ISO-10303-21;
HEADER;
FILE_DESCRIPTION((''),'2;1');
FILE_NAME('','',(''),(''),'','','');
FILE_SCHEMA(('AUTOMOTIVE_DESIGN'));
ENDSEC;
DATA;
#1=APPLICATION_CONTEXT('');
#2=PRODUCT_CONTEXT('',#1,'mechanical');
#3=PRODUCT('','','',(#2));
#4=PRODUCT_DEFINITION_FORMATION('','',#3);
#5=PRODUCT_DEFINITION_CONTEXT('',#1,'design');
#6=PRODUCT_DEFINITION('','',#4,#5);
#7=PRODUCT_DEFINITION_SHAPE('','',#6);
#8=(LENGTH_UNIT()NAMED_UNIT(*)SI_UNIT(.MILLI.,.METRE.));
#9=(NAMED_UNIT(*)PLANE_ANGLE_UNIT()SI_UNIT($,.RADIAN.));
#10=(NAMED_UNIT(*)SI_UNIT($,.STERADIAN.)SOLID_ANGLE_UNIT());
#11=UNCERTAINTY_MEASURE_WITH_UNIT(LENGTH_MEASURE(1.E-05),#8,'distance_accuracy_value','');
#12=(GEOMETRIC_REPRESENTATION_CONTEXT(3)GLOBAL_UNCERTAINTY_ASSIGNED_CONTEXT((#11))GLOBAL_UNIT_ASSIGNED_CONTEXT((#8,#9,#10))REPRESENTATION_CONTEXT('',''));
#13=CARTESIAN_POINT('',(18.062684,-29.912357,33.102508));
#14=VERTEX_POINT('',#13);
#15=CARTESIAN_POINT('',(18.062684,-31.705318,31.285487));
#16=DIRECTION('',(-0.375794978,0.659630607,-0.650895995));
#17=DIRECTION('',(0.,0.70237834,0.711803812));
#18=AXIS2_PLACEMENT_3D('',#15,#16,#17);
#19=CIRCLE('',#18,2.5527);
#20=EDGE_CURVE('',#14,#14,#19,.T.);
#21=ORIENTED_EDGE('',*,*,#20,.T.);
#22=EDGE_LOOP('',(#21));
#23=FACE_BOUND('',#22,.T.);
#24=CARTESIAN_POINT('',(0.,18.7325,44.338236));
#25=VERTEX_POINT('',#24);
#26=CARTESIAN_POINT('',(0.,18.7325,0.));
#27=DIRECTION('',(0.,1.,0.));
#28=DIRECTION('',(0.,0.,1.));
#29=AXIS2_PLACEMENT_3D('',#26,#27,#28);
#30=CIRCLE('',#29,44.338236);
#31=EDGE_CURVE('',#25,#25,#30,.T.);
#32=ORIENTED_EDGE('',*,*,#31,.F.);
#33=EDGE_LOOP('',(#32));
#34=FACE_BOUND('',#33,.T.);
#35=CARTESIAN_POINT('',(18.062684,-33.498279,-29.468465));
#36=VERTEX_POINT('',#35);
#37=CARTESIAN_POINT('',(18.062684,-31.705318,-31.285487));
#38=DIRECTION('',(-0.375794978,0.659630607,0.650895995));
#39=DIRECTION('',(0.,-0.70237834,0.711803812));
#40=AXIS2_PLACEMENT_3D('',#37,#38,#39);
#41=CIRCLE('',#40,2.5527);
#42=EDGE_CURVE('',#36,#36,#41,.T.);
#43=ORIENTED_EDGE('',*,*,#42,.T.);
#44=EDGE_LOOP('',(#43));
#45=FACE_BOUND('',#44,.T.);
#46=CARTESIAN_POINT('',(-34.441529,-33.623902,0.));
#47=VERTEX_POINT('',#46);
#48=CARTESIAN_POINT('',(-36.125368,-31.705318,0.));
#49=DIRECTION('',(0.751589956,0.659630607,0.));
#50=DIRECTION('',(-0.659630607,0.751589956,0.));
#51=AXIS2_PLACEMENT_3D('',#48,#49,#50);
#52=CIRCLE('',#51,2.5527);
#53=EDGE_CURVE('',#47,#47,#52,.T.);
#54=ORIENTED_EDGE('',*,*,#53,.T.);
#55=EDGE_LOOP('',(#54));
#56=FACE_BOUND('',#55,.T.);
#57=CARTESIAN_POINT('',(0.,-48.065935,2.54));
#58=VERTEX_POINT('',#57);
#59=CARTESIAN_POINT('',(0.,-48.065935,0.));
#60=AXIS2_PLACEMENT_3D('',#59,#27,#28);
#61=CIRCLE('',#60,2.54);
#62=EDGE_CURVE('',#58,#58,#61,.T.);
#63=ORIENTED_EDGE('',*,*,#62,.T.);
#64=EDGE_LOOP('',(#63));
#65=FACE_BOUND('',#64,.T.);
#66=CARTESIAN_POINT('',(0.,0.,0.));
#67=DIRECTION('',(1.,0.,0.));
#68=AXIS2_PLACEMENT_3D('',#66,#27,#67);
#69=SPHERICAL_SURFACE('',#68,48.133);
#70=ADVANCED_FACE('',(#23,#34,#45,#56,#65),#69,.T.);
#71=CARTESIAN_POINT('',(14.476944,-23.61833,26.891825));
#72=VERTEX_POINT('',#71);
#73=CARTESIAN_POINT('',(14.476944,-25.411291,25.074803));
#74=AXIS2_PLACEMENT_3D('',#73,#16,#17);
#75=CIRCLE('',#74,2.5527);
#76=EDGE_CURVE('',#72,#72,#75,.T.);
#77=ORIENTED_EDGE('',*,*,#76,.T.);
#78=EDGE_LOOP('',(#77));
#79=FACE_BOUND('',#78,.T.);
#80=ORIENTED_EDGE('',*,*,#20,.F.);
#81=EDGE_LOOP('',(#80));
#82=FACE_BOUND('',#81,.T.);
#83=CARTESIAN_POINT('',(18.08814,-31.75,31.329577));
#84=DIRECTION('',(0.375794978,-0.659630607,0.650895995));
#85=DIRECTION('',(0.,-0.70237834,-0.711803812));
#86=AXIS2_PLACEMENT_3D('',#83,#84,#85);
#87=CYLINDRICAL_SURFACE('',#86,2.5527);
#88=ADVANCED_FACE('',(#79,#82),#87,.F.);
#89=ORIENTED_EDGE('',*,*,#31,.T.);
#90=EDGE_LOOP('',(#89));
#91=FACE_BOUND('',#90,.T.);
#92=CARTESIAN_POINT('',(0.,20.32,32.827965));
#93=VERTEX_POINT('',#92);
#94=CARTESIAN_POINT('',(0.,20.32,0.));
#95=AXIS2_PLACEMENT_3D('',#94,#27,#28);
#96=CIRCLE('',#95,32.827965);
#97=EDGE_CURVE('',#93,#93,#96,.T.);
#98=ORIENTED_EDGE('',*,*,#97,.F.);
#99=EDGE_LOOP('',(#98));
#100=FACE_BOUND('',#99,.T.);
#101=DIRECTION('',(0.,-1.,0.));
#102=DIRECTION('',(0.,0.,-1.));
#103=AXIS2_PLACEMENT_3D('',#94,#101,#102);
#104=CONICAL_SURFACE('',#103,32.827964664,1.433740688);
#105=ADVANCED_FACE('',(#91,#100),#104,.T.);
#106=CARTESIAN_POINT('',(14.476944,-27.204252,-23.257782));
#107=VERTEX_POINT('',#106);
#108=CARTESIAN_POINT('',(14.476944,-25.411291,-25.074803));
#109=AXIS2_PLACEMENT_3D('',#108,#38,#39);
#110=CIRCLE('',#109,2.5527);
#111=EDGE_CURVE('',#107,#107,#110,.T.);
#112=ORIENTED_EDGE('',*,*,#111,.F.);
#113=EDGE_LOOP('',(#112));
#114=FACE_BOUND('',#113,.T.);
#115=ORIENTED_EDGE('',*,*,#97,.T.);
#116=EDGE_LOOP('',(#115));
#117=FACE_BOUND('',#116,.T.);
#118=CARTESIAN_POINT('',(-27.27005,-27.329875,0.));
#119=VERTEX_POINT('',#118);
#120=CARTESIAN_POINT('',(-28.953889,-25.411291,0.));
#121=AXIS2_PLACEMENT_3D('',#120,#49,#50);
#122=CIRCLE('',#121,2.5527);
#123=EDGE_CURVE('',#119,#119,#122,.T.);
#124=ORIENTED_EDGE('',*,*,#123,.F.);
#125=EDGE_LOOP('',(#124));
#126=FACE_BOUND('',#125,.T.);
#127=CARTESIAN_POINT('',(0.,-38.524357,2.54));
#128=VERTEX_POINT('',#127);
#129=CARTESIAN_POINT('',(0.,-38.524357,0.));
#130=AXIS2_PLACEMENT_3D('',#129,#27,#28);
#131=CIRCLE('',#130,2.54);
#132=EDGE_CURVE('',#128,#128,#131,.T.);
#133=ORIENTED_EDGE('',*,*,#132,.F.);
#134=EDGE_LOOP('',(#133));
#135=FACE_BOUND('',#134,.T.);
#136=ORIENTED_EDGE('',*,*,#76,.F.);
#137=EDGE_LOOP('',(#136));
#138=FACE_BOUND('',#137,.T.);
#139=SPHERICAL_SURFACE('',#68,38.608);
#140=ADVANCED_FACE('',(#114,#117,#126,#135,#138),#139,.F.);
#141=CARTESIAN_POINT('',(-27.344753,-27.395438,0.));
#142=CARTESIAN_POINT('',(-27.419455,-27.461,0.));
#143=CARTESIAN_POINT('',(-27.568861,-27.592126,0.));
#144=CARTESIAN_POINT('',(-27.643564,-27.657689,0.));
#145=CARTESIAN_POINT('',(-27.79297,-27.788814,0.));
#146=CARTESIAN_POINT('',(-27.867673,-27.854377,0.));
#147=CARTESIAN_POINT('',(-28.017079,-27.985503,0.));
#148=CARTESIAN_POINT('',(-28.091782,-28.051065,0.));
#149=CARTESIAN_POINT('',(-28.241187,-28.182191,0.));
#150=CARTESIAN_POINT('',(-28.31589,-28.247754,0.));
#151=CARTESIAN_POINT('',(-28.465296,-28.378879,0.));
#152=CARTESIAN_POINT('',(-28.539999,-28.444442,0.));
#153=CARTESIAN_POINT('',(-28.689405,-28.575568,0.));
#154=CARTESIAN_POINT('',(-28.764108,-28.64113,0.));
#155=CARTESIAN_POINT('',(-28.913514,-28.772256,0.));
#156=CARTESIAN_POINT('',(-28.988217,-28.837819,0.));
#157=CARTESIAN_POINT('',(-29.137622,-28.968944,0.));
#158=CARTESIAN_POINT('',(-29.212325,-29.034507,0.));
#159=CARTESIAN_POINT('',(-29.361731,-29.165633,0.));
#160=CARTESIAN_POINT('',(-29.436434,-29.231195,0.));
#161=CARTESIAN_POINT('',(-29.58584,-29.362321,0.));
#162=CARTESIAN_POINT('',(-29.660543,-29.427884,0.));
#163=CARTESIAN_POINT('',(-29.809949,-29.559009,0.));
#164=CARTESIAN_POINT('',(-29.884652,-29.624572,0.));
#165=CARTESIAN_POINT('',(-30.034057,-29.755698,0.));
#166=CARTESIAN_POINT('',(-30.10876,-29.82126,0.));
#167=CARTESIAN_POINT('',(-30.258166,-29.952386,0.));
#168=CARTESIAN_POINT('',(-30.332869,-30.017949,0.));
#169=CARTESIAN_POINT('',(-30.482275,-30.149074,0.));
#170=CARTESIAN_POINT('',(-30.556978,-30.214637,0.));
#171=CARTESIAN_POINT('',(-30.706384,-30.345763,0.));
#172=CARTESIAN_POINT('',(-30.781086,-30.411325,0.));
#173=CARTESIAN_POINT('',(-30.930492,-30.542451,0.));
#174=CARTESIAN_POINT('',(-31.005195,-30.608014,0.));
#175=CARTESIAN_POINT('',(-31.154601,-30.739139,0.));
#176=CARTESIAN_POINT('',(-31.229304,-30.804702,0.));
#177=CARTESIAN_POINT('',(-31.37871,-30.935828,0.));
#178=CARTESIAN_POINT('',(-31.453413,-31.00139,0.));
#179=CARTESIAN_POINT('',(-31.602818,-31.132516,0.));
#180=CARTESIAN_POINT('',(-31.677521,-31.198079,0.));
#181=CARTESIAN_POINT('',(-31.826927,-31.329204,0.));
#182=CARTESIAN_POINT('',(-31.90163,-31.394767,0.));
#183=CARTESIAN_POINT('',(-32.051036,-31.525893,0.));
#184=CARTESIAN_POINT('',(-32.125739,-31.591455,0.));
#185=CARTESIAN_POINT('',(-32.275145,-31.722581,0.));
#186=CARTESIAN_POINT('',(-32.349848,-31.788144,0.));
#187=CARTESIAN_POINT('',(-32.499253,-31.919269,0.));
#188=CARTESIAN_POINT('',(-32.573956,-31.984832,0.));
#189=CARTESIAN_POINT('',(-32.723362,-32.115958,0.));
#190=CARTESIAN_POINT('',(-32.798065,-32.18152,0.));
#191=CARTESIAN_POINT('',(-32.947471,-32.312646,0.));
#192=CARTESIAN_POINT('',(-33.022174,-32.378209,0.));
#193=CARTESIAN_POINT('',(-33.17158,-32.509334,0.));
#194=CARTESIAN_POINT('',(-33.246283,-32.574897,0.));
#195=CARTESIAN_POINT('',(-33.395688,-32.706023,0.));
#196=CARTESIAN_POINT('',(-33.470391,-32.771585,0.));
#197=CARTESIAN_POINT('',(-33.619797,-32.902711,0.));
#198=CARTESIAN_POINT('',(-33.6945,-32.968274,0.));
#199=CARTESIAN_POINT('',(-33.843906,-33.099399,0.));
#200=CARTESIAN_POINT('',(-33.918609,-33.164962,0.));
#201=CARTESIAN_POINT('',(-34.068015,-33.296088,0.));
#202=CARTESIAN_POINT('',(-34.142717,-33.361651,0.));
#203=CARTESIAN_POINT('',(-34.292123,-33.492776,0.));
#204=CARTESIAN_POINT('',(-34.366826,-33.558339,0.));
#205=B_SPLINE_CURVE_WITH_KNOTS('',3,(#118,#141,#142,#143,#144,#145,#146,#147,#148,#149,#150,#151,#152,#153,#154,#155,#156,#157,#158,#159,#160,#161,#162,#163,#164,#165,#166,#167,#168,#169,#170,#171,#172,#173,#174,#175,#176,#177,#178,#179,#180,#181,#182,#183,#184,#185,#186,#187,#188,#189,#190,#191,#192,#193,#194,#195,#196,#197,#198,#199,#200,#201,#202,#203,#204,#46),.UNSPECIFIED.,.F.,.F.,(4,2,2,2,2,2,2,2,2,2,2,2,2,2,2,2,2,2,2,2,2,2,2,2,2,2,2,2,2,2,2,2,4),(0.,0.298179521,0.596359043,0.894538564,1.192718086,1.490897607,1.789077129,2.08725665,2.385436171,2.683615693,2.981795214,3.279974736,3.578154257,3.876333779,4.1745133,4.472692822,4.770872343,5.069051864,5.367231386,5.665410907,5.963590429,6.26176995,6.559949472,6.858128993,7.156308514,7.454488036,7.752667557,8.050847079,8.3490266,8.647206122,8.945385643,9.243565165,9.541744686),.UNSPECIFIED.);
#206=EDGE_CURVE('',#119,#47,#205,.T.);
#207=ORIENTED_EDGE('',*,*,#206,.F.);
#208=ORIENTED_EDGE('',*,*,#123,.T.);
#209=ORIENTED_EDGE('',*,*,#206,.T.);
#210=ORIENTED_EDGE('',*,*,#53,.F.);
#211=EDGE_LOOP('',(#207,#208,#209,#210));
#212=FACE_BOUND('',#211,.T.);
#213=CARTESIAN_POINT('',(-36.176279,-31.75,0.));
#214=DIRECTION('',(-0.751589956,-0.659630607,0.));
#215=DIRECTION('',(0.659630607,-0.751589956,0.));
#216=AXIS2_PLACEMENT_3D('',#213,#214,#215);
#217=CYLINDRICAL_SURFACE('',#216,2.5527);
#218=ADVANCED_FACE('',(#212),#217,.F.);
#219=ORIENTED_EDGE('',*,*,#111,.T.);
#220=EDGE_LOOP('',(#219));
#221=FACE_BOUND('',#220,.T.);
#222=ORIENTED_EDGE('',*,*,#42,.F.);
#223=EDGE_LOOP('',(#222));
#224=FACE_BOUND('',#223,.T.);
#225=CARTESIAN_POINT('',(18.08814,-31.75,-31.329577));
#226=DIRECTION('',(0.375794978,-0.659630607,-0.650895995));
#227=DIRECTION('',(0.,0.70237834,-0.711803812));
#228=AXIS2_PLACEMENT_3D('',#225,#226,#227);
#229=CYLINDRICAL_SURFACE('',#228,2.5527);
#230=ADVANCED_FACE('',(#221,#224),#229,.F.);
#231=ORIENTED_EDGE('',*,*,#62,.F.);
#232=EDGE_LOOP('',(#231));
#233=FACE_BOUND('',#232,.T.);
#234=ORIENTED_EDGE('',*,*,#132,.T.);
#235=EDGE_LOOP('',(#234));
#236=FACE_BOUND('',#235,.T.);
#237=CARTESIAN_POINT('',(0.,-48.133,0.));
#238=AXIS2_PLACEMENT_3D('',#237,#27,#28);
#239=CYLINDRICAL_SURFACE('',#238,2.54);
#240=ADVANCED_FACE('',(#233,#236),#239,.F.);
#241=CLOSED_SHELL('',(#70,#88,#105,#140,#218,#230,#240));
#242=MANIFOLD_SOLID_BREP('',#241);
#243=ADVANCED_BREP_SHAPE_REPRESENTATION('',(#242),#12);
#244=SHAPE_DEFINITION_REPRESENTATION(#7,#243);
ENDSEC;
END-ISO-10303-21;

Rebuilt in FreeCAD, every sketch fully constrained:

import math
import FreeCAD as App
import Part
import Sketcher
from FreeCAD import Vector
Q = App.Units.Quantity

doc = App.newDocument("Part")
body = doc.addObject("PartDesign::Body", "Body")

sketch1 = body.newObject("Sketcher::SketchObject", "Sketch")
sketch1.AttachmentSupport = (doc.getObject("XY_Plane"), [""])
sketch1.MapMode = "FlatFace"
sketch1.addGeometry(Part.ArcOfCircle(Part.Circle(Vector(0, 0, 0), Vector(0, 0, 1), 39), math.radians(148), math.radians(270)), False)
sketch1.addGeometry(Part.LineSegment(Vector(-33, 20, 0), Vector(-44, 19, 0)), False)
sketch1.addGeometry(Part.ArcOfCircle(Part.Circle(Vector(0, 0, 0), Vector(0, 0, 1), 48), math.radians(157), math.radians(270)), False)
sketch1.addGeometry(Part.LineSegment(Vector(0, -48, 0), Vector(0, -39, 0)), False)
sketch1.addConstraint(Sketcher.Constraint("Coincident", 0, 1, 1, 1))
sketch1.addConstraint(Sketcher.Constraint("Coincident", 1, 2, 2, 1))
sketch1.addConstraint(Sketcher.Constraint("Coincident", 2, 2, 3, 1))
sketch1.addConstraint(Sketcher.Constraint("Coincident", 3, 2, 0, 2))
sketch1.addConstraint(Sketcher.Constraint("Vertical", 3))
sketch1.addConstraint(Sketcher.Constraint("Coincident", 0, 3, -1, 1))
sketch1.addConstraint(Sketcher.Constraint("Coincident", 2, 3, -1, 1))
sketch1.addConstraint(Sketcher.Constraint("PointOnObject", 2, 2, -2))
sketch1.addConstraint(Sketcher.Constraint("Radius", 0, Q("1.52 in")))
sketch1.addConstraint(Sketcher.Constraint("Radius", 2, Q("1.895 in")))
sketch1.addConstraint(Sketcher.Constraint("DistanceY", -1, 1, 0, 1, Q("0.8 in")))
sketch1.addConstraint(Sketcher.Constraint("DistanceY", 1, 2, 0, 1, Q("0.0625 in")))
revolution = body.newObject("PartDesign::Revolution", "Revolution")
revolution.Profile = sketch1
revolution.ReferenceAxis = (sketch1, ["V_Axis"])
revolution.Angle = 360

sketch2 = body.newObject("Sketcher::SketchObject", "Sketch001")
sketch2.Placement = App.Placement(Vector(-36.176279, -31.75, 0), App.Rotation(Vector(0.659630607, -0.751589956, 0), Vector(0, 0, 1), Vector(-0.751589956, -0.659630607, 0), "ZXY"))
sketch2.addGeometry(Part.Circle(Vector(0, 0, 0), Vector(0, 0, 1), 2.6), False)
sketch2.addConstraint(Sketcher.Constraint("Coincident", 0, 3, -1, 1))
sketch2.addConstraint(Sketcher.Constraint("Diameter", 0, Q("0.201 in")))
doc.recompute()
hole = body.newObject("PartDesign::Hole", "Hole")
hole.Profile = sketch2
hole.ThreadType = "None"
hole.Diameter = Q("0.201 in")
hole.DepthType = "Dimension"
hole.Depth = 101.176865
hole.DrillPoint = "Flat"
doc.recompute()

polarpattern = body.newObject("PartDesign::PolarPattern", "PolarPattern")
polarpattern.Originals = [hole]
polarpattern.Axis = (doc.getObject("Y_Axis"), [""])
polarpattern.Angle = 360
polarpattern.Occurrences = 3
body.Tip = polarpattern

sketch3 = body.newObject("Sketcher::SketchObject", "Sketch002")
sketch3.AttachmentSupport = (doc.getObject("XZ_Plane"), [""])
sketch3.MapMode = "FlatFace"
sketch3.addGeometry(Part.Circle(Vector(0, 0, 0), Vector(0, 0, 1), 2.5), False)
sketch3.addConstraint(Sketcher.Constraint("Coincident", 0, 3, -1, 1))
sketch3.addConstraint(Sketcher.Constraint("Diameter", 0, Q("0.2 in")))
pocket1 = body.newObject("PartDesign::Pocket", "Pocket")
pocket1.Profile = sketch3
pocket1.Type = "ThroughAll"
pocket1.Reversed = True

doc.recompute()
